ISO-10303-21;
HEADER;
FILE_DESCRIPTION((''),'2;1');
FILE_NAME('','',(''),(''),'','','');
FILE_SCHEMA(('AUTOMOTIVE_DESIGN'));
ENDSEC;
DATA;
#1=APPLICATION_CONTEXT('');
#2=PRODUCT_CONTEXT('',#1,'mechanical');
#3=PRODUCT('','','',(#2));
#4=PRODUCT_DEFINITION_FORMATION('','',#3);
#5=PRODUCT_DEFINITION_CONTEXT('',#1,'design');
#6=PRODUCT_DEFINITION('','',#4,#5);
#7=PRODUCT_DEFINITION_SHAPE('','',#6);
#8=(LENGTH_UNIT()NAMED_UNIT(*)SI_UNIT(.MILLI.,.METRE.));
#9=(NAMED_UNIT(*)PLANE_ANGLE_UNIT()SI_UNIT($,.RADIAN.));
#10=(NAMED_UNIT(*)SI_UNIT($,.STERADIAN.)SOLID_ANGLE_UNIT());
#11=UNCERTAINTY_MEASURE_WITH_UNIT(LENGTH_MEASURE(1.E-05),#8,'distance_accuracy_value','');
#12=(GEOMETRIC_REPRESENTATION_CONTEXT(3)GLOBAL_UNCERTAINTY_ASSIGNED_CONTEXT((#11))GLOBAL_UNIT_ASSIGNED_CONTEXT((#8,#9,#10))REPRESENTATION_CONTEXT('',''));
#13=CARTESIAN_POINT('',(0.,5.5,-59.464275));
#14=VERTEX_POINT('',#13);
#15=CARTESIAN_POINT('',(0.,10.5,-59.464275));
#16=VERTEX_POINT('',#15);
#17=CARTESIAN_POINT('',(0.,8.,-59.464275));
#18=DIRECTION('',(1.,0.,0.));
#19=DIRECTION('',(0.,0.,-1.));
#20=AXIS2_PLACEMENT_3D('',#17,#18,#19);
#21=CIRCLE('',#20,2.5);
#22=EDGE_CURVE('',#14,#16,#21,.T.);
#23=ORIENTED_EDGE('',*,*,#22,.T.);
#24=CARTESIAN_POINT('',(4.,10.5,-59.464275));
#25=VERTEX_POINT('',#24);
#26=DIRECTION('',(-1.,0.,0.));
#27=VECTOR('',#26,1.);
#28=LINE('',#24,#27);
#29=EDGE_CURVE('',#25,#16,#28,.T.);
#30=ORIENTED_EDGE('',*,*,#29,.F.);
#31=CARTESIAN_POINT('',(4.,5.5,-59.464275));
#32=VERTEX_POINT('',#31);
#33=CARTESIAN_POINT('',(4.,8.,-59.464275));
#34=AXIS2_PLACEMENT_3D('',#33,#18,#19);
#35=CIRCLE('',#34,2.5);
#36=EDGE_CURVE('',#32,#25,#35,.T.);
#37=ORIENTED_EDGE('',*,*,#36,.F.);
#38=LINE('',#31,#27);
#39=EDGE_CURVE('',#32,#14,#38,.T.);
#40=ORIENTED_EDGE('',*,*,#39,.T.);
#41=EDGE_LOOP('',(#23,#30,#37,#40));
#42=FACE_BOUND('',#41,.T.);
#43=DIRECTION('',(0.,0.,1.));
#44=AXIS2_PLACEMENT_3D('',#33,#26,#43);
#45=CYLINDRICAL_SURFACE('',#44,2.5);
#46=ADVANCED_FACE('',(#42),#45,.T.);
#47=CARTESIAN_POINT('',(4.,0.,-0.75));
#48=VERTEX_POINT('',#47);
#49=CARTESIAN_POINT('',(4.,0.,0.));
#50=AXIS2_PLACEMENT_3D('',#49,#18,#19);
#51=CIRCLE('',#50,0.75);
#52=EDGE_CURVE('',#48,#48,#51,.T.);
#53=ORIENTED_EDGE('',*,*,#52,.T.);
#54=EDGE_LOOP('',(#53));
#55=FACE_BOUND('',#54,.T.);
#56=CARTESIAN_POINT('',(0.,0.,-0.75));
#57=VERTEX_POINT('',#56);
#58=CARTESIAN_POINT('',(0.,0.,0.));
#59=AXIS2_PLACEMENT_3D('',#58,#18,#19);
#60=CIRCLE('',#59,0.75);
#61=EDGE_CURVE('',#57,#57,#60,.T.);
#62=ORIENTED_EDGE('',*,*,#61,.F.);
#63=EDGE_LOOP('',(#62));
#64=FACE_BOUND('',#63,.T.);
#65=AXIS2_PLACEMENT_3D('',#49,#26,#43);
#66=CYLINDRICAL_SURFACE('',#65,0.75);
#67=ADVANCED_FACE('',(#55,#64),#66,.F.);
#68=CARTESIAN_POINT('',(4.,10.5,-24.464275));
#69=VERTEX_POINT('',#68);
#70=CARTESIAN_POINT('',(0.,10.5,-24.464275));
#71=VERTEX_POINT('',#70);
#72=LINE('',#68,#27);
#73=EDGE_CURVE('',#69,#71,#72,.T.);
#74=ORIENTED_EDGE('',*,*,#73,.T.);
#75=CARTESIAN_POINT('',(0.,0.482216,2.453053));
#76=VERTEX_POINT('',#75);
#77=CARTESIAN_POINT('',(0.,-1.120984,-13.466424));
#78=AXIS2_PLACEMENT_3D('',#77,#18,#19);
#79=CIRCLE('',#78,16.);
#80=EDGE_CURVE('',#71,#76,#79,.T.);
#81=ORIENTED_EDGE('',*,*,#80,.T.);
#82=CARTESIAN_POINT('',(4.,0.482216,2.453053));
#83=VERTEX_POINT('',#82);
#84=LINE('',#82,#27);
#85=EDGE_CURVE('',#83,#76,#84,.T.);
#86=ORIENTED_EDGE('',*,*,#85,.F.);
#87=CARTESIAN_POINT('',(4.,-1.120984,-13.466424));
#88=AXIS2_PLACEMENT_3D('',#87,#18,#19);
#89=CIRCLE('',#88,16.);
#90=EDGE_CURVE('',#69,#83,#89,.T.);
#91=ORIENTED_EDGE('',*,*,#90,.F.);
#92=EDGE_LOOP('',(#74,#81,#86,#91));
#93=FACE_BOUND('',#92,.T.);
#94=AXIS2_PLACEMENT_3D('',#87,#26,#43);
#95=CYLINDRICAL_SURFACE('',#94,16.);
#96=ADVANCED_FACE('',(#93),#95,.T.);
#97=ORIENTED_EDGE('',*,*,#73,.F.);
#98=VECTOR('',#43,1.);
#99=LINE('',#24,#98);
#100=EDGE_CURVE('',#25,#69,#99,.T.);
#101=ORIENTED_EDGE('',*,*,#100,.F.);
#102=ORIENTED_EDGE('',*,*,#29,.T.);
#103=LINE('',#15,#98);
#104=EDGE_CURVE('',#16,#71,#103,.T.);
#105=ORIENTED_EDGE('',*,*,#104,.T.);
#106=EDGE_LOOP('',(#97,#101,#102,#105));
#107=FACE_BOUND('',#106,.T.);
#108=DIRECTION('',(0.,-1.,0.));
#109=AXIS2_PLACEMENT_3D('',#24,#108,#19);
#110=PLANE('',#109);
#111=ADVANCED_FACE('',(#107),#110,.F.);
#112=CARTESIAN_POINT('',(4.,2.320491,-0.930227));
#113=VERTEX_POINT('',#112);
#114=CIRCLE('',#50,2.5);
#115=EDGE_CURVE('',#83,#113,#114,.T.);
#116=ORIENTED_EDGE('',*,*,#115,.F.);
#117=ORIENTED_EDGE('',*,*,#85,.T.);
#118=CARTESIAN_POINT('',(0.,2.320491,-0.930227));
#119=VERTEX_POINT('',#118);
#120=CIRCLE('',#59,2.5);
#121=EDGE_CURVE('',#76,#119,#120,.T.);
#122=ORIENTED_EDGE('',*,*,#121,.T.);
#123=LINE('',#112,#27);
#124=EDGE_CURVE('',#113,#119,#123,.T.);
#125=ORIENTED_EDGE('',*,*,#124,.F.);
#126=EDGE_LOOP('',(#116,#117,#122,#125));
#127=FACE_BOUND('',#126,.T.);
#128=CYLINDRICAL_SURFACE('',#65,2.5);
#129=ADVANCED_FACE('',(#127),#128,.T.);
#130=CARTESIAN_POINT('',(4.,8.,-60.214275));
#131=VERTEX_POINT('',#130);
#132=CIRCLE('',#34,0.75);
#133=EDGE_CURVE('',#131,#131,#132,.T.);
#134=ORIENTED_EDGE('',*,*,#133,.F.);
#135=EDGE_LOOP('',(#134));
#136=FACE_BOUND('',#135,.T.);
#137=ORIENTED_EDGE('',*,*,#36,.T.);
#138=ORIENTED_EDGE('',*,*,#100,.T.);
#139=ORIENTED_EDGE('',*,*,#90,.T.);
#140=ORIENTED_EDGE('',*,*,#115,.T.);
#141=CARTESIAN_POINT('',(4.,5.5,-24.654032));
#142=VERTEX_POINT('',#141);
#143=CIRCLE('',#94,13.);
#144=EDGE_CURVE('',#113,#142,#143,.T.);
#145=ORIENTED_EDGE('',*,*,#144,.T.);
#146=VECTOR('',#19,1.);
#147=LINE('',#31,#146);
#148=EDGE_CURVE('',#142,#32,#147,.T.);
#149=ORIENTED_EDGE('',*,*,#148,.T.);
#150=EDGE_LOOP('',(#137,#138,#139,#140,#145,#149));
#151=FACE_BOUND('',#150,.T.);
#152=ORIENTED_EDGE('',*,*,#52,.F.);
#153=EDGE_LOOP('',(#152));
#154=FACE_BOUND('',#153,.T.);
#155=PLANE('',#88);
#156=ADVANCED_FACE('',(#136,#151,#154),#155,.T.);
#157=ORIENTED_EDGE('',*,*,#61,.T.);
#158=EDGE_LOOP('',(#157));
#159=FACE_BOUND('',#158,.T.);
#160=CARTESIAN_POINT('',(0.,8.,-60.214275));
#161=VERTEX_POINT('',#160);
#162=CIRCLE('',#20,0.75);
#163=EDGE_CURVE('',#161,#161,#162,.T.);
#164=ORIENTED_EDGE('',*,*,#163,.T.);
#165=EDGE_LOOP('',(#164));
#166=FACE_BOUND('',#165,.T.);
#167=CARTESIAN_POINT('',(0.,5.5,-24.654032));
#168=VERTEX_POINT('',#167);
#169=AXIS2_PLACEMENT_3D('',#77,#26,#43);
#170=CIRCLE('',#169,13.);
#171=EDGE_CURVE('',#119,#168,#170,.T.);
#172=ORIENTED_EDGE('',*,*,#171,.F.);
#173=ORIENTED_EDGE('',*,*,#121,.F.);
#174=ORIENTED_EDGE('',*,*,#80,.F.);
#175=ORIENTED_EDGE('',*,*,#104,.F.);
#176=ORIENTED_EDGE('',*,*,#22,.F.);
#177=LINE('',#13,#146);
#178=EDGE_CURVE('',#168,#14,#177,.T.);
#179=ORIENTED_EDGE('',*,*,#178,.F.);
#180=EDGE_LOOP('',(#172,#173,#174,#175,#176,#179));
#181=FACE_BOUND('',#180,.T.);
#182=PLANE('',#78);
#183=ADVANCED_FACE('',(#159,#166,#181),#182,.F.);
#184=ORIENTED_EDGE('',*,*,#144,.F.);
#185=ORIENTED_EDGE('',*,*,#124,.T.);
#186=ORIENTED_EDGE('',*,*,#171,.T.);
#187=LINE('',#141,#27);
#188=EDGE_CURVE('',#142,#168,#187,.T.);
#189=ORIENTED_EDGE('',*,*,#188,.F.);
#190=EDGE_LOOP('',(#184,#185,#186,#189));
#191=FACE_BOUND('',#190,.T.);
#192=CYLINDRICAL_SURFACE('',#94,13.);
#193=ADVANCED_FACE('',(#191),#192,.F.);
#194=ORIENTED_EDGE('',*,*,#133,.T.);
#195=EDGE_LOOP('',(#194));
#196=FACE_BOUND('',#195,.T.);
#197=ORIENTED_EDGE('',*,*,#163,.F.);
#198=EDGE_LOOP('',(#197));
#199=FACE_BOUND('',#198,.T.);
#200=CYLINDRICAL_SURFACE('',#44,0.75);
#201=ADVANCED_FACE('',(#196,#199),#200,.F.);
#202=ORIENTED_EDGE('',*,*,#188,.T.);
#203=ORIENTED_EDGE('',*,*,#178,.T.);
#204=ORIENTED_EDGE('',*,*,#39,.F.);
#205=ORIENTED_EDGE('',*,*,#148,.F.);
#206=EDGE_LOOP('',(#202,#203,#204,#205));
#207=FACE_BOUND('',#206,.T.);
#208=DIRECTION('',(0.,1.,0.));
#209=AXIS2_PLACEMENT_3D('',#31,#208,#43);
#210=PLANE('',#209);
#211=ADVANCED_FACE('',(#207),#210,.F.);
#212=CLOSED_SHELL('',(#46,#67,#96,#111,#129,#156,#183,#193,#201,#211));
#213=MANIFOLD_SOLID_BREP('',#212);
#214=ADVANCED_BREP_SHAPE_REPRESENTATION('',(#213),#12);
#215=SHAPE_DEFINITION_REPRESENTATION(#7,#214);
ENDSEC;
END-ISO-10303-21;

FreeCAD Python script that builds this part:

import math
import FreeCAD as App
import Part
import Sketcher
Q = App.Units.Quantity

doc = App.newDocument("Part")
body = doc.addObject("PartDesign::Body", "Body")

sketch1 = body.newObject("Sketcher::SketchObject", "Sketch")
sketch1.AttachmentSupport = (doc.getObject("YZ_Plane"), [""])
sketch1.MapMode = "FlatFace"
sketch1.addGeometry(Part.LineSegment(App.Vector(10.5, -59.5, 0), App.Vector(10.5, -24.5, 0)), False)
sketch1.addGeometry(Part.ArcOfCircle(Part.Circle(App.Vector(-1.1, -13.5, 0), App.Vector(0, 0, 1), 16), math.radians(-43), math.radians(84)), False)
sketch1.addGeometry(Part.ArcOfCircle(Part.Circle(App.Vector(0, 0, 0), App.Vector(0, 0, 1), 2.5), math.radians(79), math.radians(338)), False)
sketch1.addGeometry(Part.ArcOfCircle(Part.Circle(App.Vector(-1.1, -13.5, 0), App.Vector(0, 0, 1), 13), math.radians(-59), math.radians(75)), False)
sketch1.addGeometry(Part.LineSegment(App.Vector(5.5, -24.7, 0), App.Vector(5.5, -59.5, 0)), False)
sketch1.addGeometry(Part.ArcOfCircle(Part.Circle(App.Vector(8, -59.5, 0), App.Vector(0, 0, 1), 2.5), math.radians(180), math.radians(360)), False)
sketch1.addGeometry(Part.Circle(App.Vector(0, 0, 0), App.Vector(0, 0, 1), 0.8), False)
sketch1.addGeometry(Part.Circle(App.Vector(8, -59.5, 0), App.Vector(0, 0, 1), 0.8), False)
sketch1.addConstraint(Sketcher.Constraint("Coincident", 0, 2, 1, 1))
sketch1.addConstraint(Sketcher.Constraint("Coincident", 1, 2, 2, 1))
sketch1.addConstraint(Sketcher.Constraint("Coincident", 2, 2, 3, 2))
sketch1.addConstraint(Sketcher.Constraint("Coincident", 3, 1, 4, 1))
sketch1.addConstraint(Sketcher.Constraint("Tangent", 4, 2, 5, 1))
sketch1.addConstraint(Sketcher.Constraint("Tangent", 5, 2, 0, 1))
sketch1.addConstraint(Sketcher.Constraint("Vertical", 0))
sketch1.addConstraint(Sketcher.Constraint("Vertical", 4))
sketch1.addConstraint(Sketcher.Constraint("Coincident", 2, 3, -1, 1))
sketch1.addConstraint(Sketcher.Constraint("Coincident", 6, 3, -1, 1))
sketch1.addConstraint(Sketcher.Constraint("Coincident", 3, 3, 1, 3))
sketch1.addConstraint(Sketcher.Constraint("Coincident", 7, 3, 5, 3))
sketch1.addConstraint(Sketcher.Constraint("Equal", 2, 5))
sketch1.addConstraint(Sketcher.Constraint("Equal", 6, 7))
sketch1.addConstraint(Sketcher.Constraint("Radius", 1, Q("16 mm")))
sketch1.addConstraint(Sketcher.Constraint("Radius", 3, Q("13 mm")))
sketch1.addConstraint(Sketcher.Constraint("Diameter", 6, Q("1.5 mm")))
sketch1.addConstraint(Sketcher.Constraint("Radius", 2, Q("2.5 mm")))
sketch1.addConstraint(Sketcher.Constraint("DistanceY", 0, 1, 0, 2, Q("35 mm")))
sketch1.addConstraint(Sketcher.Constraint("DistanceX", -1, 1, 5, 3, Q("8 mm")))
sketch1.addConstraint(Sketcher.Constraint("DistanceX", 1, 3, 1, 2, Q("1.603201 mm")))
sketch1.addConstraint(Sketcher.Constraint("DistanceY", 4, 2, 4, 1, Q("34.810243 mm")))
pad1 = body.newObject("PartDesign::Pad", "Pad")
pad1.Profile = sketch1
pad1.Length = 4

doc.recompute()
